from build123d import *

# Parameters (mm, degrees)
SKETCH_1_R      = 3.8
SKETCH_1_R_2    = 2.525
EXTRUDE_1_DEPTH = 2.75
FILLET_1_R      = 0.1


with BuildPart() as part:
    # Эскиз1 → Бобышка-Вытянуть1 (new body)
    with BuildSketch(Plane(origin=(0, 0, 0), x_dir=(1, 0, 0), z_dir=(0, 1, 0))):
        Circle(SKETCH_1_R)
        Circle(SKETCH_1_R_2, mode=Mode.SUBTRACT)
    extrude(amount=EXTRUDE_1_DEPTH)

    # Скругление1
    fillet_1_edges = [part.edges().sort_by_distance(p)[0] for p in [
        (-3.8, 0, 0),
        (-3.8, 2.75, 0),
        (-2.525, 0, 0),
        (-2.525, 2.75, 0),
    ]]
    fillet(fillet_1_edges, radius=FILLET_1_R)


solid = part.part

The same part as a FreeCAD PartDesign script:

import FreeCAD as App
import Part
import Sketcher
from FreeCAD import Vector


def edges_at(feature, points):
    """Names of the edges that pass closest to the given points."""
    edges = feature.Shape.Edges
    near = lambda p: min(range(len(edges)), key=lambda i: edges[i].distToShape(Part.Vertex(*p))[0])
    return sorted({f"Edge{near(p) + 1}" for p in points})

doc = App.newDocument("Part")
body = doc.addObject("PartDesign::Body", "Body")

sketch1 = doc.addObject("Sketcher::SketchObject", "Sketch")
body.addObject(sketch1)
sketch1.AttachmentSupport = (doc.XZ_Plane, [""])
sketch1.MapMode = "FlatFace"
sketch1.addGeometry(Part.Circle(Vector(0, 0, 0), Vector(0, 0, 1), 3.8), False)
sketch1.addGeometry(Part.Circle(Vector(0, 0, 0), Vector(0, 0, 1), 2.525), False)
sketch1.addConstraint(Sketcher.Constraint("Coincident", 0, 3, -1, 1))
sketch1.addConstraint(Sketcher.Constraint("Coincident", 1, 3, -1, 1))
sketch1.addConstraint(Sketcher.Constraint("Diameter", 0, 7.6))
sketch1.addConstraint(Sketcher.Constraint("Diameter", 1, 5.05))
pad1 = doc.addObject("PartDesign::Pad", "Pad")
body.addObject(pad1)
pad1.Profile = sketch1
pad1.Length = 2.75
pad1.Reversed = True
doc.recompute()

fillet = doc.addObject("PartDesign::Fillet", "Fillet")
body.addObject(fillet)
fillet.Base = (pad1, edges_at(pad1, [
    (-3.8, 0, 0),
    (-3.8, 2.75, 0),
    (-2.525, 0, 0),
    (-2.525, 2.75, 0),
]))
fillet.Radius = 0.1

doc.recompute()
